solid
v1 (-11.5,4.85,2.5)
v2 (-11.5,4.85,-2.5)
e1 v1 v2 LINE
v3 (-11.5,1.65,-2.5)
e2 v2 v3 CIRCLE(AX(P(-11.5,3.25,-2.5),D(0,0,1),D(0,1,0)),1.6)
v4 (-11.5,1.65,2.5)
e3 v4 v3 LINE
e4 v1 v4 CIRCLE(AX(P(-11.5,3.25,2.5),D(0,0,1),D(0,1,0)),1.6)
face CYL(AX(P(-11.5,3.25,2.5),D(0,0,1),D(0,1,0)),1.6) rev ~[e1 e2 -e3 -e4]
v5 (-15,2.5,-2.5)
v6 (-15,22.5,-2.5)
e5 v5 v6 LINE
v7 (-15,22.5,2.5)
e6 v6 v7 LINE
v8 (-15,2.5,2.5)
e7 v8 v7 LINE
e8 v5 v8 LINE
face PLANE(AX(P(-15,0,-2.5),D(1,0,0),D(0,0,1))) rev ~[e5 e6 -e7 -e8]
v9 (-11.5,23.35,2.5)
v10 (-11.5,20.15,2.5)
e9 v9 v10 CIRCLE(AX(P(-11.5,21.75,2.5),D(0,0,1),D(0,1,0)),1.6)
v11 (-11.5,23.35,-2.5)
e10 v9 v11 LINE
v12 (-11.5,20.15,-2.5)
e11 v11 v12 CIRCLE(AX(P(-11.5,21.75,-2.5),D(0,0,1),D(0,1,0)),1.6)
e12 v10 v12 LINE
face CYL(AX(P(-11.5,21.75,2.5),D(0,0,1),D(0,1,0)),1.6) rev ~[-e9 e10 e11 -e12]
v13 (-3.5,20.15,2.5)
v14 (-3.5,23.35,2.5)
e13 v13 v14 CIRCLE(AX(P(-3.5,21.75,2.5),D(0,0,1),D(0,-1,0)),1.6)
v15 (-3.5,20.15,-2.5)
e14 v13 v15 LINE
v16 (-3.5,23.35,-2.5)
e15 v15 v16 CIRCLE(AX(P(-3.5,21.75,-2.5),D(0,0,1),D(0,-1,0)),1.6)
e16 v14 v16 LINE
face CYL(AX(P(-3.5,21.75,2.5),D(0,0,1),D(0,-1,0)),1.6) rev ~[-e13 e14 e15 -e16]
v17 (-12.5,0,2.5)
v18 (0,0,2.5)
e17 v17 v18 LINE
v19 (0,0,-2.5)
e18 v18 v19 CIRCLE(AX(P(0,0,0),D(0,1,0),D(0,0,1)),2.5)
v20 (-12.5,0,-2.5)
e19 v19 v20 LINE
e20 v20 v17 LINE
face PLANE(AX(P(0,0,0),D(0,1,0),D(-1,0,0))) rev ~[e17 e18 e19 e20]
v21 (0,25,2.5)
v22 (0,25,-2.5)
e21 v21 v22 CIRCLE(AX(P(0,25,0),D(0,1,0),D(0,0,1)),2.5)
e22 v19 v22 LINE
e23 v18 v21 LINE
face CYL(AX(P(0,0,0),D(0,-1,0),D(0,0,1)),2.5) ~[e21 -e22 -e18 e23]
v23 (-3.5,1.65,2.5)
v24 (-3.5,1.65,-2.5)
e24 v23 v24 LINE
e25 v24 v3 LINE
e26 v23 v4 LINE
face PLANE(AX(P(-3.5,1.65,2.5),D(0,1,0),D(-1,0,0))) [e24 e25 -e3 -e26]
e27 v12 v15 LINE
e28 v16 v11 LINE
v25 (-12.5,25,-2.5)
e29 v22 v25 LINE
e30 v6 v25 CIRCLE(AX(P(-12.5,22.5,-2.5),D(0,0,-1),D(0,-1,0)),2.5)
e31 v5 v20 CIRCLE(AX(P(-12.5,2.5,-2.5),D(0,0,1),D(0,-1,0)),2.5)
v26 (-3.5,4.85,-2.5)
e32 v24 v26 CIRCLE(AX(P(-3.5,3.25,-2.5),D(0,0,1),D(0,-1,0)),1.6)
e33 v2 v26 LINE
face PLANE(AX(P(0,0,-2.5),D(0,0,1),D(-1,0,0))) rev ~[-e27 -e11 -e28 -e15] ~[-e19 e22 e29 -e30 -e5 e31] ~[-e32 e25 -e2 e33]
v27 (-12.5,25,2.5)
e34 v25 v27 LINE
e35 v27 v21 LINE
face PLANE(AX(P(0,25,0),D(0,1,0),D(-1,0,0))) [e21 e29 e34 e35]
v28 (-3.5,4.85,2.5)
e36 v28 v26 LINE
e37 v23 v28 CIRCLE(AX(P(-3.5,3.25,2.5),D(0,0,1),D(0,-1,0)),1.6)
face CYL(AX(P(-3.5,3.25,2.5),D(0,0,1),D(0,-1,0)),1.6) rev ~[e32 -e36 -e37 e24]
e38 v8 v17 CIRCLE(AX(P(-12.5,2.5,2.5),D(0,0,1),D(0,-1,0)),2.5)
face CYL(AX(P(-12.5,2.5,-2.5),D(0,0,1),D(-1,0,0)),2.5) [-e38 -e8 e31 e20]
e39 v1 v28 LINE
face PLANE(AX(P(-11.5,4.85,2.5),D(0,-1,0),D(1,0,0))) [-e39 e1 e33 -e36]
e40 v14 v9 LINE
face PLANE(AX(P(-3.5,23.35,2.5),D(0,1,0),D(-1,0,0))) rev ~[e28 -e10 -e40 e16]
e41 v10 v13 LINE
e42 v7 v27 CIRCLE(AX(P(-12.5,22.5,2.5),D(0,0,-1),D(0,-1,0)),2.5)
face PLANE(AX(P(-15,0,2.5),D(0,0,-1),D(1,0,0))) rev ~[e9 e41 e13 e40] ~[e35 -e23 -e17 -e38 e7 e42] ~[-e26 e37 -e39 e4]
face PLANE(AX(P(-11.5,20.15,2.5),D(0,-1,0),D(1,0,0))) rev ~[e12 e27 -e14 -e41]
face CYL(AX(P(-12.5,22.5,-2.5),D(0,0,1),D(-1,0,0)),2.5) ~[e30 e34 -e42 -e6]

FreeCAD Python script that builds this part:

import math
import FreeCAD as App
import Part
import Sketcher


def edges_at(feature, points):
    """Names of the edges that pass closest to the given points."""
    edges = feature.Shape.Edges
    near = lambda p: min(range(len(edges)), key=lambda i: edges[i].distToShape(Part.Vertex(*p))[0])
    return sorted({f"Edge{near(p) + 1}" for p in points})

doc = App.newDocument("Part")
body = doc.addObject("PartDesign::Body", "Body")

sketch1 = body.newObject("Sketcher::SketchObject", "Sketch")
sketch1.AttachmentSupport = (doc.getObject("XZ_Plane"), [""])
sketch1.MapMode = "FlatFace"
sketch1.addGeometry([
    Part.LineSegment(App.Vector(-15, 2.5, 0), App.Vector(0, 2.5, 0)),
    Part.ArcOfCircle(Part.Circle(App.Vector(0, 0, 0), App.Vector(0, 0, 1), 2.5), math.radians(-90), math.radians(90)),
    Part.LineSegment(App.Vector(0, -2.5, 0), App.Vector(-15, -2.5, 0)),
    Part.LineSegment(App.Vector(-15, -2.5, 0), App.Vector(-15, 2.5, 0)),
], False)
sketch1.addConstraint([
    Sketcher.Constraint("Tangent", 0, 2, 1, 2),
    Sketcher.Constraint("Tangent", 1, 1, 2, 1),
    Sketcher.Constraint("Coincident", 2, 2, 3, 1),
    Sketcher.Constraint("Coincident", 3, 2, 0, 1),
    Sketcher.Constraint("Horizontal", 0),
    Sketcher.Constraint("Horizontal", 2),
    Sketcher.Constraint("Vertical", 3),
    Sketcher.Constraint("Coincident", 1, 3, -1, 1),
    Sketcher.Constraint("Radius", 1, 2.5),
    Sketcher.Constraint("DistanceX", 0, 1, 0, 2, 15.0),
])
pad1 = body.newObject("PartDesign::Pad", "Pad")
pad1.Profile = sketch1
pad1.Length = 25
pad1.Reversed = True

sketch2 = body.newObject("Sketcher::SketchObject", "Sketch001")
sketch2.AttachmentSupport = (doc.getObject("XY_Plane"), [""])
sketch2.MapMode = "FlatFace"
sketch2.AttachmentOffset = App.Placement(App.Vector(0, 0, 2.5), App.Rotation())
sketch2.addGeometry([
    Part.ArcOfCircle(Part.Circle(App.Vector(-3.5, 21.8, 0), App.Vector(0, 0, 1), 1.6), math.radians(-90), math.radians(90)),
    Part.LineSegment(App.Vector(-3.5, 23.4, 0), App.Vector(-11.5, 23.4, 0)),
    Part.ArcOfCircle(Part.Circle(App.Vector(-11.5, 21.8, 0), App.Vector(0, 0, 1), 1.6), math.radians(90), math.radians(270)),
    Part.LineSegment(App.Vector(-11.5, 20.1, 0), App.Vector(-3.5, 20.1, 0)),
    Part.LineSegment(App.Vector(-11.5, 1.6, 0), App.Vector(-3.5, 1.6, 0)),
    Part.ArcOfCircle(Part.Circle(App.Vector(-3.5, 3.2, 0), App.Vector(0, 0, 1), 1.6), math.radians(-90), math.radians(90)),
    Part.LineSegment(App.Vector(-3.5, 4.8, 0), App.Vector(-11.5, 4.8, 0)),
    Part.ArcOfCircle(Part.Circle(App.Vector(-11.5, 3.2, 0), App.Vector(0, 0, 1), 1.6), math.radians(90), math.radians(270)),
], False)
sketch2.addConstraint([
    Sketcher.Constraint("Tangent", 0, 2, 1, 1),
    Sketcher.Constraint("Tangent", 1, 2, 2, 1),
    Sketcher.Constraint("Tangent", 2, 2, 3, 1),
    Sketcher.Constraint("Tangent", 3, 2, 0, 1),
    Sketcher.Constraint("Tangent", 4, 2, 5, 1),
    Sketcher.Constraint("Tangent", 5, 2, 6, 1),
    Sketcher.Constraint("Tangent", 6, 2, 7, 1),
    Sketcher.Constraint("Tangent", 7, 2, 4, 1),
    Sketcher.Constraint("Horizontal", 1),
    Sketcher.Constraint("Horizontal", 3),
    Sketcher.Constraint("Horizontal", 4),
    Sketcher.Constraint("Horizontal", 6),
    Sketcher.Constraint("Equal", 2, 5),
    Sketcher.Constraint("Vertical", 0, 3, 5, 3),
    Sketcher.Constraint("Vertical", 2, 3, 7, 3),
    Sketcher.Constraint("Radius", 0, 1.6),
    Sketcher.Constraint("DistanceX", 1, 2, 1, 1, 8.0),
    Sketcher.Constraint("DistanceX", 0, 3, -1, 1, 3.5),
    Sketcher.Constraint("DistanceY", 5, 3, 0, 3, 18.5),
    Sketcher.Constraint("DistanceY", -1, 1, 0, 3, 21.75),
])
pocket1 = body.newObject("PartDesign::Pocket", "Pocket")
pocket1.Profile = sketch2
pocket1.Type = "ThroughAll"
doc.recompute()

fillet = body.newObject("PartDesign::Fillet", "Fillet")
fillet.Base = (pocket1, edges_at(pocket1, [(-15, 0, 0), (-15, 25, 0)]))
fillet.Radius = 2.5

doc.recompute()
